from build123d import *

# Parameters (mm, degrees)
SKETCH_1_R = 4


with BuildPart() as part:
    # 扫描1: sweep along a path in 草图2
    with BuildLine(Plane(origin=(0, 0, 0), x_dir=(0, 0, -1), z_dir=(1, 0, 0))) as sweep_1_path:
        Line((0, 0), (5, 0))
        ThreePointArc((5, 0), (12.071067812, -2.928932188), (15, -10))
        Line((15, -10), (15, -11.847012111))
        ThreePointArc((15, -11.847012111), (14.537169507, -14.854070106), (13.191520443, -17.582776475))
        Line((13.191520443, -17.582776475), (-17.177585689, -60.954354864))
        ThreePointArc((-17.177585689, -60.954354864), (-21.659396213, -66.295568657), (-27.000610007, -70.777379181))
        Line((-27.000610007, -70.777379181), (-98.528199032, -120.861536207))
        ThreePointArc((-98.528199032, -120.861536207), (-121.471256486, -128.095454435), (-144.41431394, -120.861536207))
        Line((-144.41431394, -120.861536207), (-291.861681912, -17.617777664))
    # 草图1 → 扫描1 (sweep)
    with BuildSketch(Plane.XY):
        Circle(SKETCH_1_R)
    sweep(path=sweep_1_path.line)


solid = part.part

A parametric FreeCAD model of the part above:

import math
import FreeCAD as App
import Part
import Sketcher
from FreeCAD import Vector
Q = App.Units.Quantity

doc = App.newDocument("Part")
body = doc.addObject("PartDesign::Body", "Body")

# Sketch on XY plane
sketch1 = body.newObject("Sketcher::SketchObject", "Sketch")
sketch1.AttachmentSupport = (doc.getObject("XY_Plane"), [""])
sketch1.MapMode = "FlatFace"
sketch1.addGeometry(Part.Circle(Vector(0, 0, 0), Vector(0, 0, 1), 4), False)
sketch1.addConstraint([
    Sketcher.Constraint("Coincident", 0, 3, -1, 1),
    Sketcher.Constraint("Diameter", 0, 8.0),
])

# Sketch on YZ plane
sketch2 = body.newObject("Sketcher::SketchObject", "Sketch001")
sketch2.AttachmentSupport = (doc.getObject("YZ_Plane"), [""])
sketch2.MapMode = "FlatFace"
sketch2.addGeometry([
    Part.LineSegment(Vector(0, 0, 0), Vector(0, -5, 0)),  # 0
    Part.ArcOfCircle(Part.Circle(Vector(-10, -5, 0), Vector(0, 0, 1), 10), math.radians(-90), math.radians(0)),  # 1
    Part.LineSegment(Vector(-10, -15, 0), Vector(-11.8, -15, 0)),  # 2
    Part.ArcOfCircle(Part.Circle(Vector(-11.8, -5, 0), Vector(0, 0, 1), 10), math.radians(-125), math.radians(-90)),  # 3
    Part.LineSegment(Vector(-17.6, -13.2, 0), Vector(-61, 17.2, 0)),  # 4
    Part.ArcOfCircle(Part.Circle(Vector(-38, 49.9, 0), Vector(0, 0, 1), 40), math.radians(-145), math.radians(-125)),  # 5
    Part.LineSegment(Vector(-70.8, 27, 0), Vector(-120.9, 98.5, 0)),  # 6
    Part.ArcOfCircle(Part.Circle(Vector(-88.1, 121.5, 0), Vector(0, 0, 1), 40), math.radians(145), math.radians(215)),  # 7
    Part.LineSegment(Vector(-120.9, 144.4, 0), Vector(-17.6, 291.9, 0)),  # 8
], False)
sketch2.addConstraint([
    Sketcher.Constraint("Tangent", 0, 2, 1, 2),
    Sketcher.Constraint("Tangent", 1, 1, 2, 1),
    Sketcher.Constraint("Tangent", 2, 2, 3, 2),
    Sketcher.Constraint("Tangent", 3, 1, 4, 1),
    Sketcher.Constraint("Tangent", 4, 2, 5, 2),
    Sketcher.Constraint("Tangent", 5, 1, 6, 1),
    Sketcher.Constraint("Tangent", 6, 2, 7, 2),
    Sketcher.Constraint("Tangent", 7, 1, 8, 1),
    Sketcher.Constraint("Vertical", 0),
    Sketcher.Constraint("Horizontal", 2),
    Sketcher.Constraint("Coincident", 0, 1, -1, 1),
    Sketcher.Constraint("Equal", 1, 3),
    Sketcher.Constraint("Equal", 5, 7),
    Sketcher.Constraint("Perpendicular", 4, 8),
    Sketcher.Constraint("Vertical", 6, 2, 7, 1),
    Sketcher.Constraint("Radius", 1, 10.0),
    Sketcher.Constraint("Radius", 5, 40.0),
    Sketcher.Constraint("DistanceY", 0, 2, 0, 1, 5.0),
    Sketcher.Constraint("Angle", 4, Q("145 deg")),
    Sketcher.Constraint("Distance", 8, 180.0),
    Sketcher.Constraint("DistanceY", -1, 1, 6, 2, 98.528199),
    Sketcher.Constraint("DistanceX", 5, 1, 8, 2, 53.159602),
    Sketcher.Constraint("DistanceX", 2, 2, 2, 1, 1.847012),
])
doc.recompute()

additivepipe = body.newObject("PartDesign::AdditivePipe", "AdditivePipe")
additivepipe.Profile = sketch1
additivepipe.Spine = (sketch2, ["Edge1", "Edge2", "Edge3", "Edge4", "Edge5", "Edge6", "Edge7", "Edge8", "Edge9"])

doc.recompute()
